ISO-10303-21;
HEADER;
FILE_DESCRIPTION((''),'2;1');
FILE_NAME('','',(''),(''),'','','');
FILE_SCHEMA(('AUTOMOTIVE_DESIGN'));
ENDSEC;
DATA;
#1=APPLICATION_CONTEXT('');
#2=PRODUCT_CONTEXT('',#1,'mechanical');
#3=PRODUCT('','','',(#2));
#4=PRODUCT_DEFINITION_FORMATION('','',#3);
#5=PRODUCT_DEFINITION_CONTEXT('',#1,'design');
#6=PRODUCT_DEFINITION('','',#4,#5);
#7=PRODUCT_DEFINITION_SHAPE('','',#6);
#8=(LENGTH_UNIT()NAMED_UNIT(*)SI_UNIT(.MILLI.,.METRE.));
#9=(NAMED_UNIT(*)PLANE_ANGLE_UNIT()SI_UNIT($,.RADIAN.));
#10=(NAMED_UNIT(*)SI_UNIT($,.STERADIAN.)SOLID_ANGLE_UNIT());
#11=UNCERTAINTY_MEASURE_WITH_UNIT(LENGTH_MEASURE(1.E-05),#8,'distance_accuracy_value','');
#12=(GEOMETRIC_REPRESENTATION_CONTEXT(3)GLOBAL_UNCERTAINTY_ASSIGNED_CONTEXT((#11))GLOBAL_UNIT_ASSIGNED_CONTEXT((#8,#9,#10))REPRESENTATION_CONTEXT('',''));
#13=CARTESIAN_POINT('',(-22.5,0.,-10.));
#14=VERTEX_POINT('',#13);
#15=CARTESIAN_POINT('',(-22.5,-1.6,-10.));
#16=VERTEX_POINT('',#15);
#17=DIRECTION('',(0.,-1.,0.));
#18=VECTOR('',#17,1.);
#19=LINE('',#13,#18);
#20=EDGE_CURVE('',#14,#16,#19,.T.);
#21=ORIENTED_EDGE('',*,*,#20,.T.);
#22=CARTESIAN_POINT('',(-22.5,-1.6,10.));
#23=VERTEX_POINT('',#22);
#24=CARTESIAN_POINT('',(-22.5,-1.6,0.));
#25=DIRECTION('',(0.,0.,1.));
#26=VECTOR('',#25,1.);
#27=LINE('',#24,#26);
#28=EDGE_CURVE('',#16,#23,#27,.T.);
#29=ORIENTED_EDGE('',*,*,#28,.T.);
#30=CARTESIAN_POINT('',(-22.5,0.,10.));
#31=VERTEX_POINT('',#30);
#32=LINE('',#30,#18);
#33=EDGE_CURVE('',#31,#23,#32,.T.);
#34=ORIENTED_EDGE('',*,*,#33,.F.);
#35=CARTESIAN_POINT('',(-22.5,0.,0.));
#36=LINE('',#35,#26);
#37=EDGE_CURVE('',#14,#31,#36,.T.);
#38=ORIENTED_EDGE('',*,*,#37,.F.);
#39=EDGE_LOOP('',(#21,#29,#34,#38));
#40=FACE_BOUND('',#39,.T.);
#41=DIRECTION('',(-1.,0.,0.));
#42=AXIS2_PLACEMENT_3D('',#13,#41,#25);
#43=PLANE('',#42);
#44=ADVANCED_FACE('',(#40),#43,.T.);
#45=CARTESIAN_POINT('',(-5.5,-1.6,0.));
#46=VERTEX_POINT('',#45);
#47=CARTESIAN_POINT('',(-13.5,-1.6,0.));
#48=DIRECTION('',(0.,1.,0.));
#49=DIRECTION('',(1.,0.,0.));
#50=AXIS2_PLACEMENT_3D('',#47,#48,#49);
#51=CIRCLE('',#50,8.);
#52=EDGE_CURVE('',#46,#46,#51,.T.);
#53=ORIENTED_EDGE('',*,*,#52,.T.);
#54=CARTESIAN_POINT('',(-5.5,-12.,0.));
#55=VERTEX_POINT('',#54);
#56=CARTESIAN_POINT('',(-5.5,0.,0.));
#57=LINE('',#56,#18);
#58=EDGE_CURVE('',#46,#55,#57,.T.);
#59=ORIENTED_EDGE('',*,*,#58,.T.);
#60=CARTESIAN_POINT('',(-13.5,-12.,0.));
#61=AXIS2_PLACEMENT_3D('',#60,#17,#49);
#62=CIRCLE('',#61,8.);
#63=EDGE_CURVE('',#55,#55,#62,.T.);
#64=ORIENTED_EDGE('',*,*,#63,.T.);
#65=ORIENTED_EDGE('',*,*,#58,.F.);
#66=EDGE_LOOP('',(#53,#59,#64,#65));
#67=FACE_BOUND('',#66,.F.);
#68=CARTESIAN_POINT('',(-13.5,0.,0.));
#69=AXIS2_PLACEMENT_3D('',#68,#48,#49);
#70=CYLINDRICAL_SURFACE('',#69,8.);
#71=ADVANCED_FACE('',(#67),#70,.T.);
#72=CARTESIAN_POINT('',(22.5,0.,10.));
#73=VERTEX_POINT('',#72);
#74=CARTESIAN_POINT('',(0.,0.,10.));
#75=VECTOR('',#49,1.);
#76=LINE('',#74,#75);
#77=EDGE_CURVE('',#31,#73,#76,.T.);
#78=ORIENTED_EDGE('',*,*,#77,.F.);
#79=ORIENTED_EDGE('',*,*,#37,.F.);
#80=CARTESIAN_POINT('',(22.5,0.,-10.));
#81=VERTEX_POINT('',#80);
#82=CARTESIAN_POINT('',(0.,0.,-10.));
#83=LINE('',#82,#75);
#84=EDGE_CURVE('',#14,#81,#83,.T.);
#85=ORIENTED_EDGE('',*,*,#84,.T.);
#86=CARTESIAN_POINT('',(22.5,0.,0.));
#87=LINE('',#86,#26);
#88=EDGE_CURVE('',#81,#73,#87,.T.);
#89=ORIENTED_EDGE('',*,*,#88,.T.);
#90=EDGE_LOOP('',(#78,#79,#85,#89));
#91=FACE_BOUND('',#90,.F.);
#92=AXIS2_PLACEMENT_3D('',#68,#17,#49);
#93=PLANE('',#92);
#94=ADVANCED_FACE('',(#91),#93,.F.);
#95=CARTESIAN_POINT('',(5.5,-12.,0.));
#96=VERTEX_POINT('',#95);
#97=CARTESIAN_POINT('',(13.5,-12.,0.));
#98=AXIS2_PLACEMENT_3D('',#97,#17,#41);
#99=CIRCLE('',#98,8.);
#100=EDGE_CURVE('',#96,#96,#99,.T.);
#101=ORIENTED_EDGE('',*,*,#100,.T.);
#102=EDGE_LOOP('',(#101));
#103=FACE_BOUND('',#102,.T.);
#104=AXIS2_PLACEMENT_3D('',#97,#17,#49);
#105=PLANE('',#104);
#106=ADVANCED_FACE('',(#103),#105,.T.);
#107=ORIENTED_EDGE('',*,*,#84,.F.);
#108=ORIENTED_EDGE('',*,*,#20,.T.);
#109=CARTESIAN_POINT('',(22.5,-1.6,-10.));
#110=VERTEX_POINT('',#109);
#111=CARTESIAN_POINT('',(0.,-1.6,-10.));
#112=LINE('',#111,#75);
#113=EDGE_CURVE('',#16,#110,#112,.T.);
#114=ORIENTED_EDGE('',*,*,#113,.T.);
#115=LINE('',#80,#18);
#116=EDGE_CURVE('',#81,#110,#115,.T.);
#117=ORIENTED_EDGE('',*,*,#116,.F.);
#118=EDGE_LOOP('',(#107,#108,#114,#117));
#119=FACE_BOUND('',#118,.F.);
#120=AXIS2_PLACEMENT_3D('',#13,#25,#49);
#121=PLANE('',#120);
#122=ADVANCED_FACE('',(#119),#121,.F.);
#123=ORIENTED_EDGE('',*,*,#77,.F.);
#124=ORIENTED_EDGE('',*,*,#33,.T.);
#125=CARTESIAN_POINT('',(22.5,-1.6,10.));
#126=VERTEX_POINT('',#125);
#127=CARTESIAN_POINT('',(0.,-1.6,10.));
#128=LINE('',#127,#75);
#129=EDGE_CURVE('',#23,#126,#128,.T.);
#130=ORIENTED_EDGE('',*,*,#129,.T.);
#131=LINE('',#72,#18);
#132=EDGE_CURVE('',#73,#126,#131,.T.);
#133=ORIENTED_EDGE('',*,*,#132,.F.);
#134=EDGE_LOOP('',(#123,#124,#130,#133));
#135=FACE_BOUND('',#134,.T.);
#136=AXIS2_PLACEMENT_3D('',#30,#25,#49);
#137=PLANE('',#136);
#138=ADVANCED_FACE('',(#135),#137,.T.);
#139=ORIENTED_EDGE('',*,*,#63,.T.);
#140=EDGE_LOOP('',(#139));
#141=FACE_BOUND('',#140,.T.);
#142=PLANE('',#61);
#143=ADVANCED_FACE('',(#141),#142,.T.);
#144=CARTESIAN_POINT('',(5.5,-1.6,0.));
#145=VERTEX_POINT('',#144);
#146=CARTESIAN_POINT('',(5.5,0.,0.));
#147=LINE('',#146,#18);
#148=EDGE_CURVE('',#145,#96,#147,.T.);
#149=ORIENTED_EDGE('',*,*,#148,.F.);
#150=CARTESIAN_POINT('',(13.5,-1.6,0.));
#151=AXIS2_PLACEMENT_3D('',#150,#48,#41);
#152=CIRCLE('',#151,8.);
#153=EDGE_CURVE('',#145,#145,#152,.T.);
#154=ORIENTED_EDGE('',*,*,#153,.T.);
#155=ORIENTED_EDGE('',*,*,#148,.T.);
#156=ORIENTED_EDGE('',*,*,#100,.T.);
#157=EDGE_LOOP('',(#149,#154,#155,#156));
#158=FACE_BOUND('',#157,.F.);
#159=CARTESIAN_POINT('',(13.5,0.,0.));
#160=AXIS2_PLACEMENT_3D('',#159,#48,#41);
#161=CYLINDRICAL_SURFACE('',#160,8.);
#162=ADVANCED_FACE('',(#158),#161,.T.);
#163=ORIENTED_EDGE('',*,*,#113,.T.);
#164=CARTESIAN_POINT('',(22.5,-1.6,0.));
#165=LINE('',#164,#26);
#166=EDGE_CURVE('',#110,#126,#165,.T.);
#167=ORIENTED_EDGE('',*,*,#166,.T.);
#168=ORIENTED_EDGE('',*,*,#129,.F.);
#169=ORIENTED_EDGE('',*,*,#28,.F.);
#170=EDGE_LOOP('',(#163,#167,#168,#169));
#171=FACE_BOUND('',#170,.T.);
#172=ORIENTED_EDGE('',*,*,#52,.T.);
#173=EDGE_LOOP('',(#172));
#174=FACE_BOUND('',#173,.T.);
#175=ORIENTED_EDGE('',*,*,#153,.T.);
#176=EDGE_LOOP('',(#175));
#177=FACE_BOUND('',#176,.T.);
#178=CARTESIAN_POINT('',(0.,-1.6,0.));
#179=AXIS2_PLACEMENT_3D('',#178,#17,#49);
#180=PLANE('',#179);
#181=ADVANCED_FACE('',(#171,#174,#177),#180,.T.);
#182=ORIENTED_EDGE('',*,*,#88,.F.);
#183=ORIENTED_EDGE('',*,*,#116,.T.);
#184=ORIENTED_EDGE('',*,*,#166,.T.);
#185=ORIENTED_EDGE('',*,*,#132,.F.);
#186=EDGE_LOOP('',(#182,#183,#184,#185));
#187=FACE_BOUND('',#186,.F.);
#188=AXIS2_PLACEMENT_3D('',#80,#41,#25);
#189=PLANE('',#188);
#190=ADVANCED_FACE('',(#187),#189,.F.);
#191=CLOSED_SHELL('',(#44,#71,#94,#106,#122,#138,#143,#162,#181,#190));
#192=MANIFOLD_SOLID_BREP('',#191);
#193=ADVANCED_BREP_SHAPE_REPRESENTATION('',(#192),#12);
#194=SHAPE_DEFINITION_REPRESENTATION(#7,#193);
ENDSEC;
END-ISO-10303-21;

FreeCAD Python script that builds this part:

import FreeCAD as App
import Part
import Sketcher
from FreeCAD import Vector


def add_polygon(sketch, points):
    """Adds a closed chain of lines whose ends are joined by coincident constraints."""
    first, n = sketch.GeometryCount, len(points)
    for a, b in zip(points, points[1:] + points[:1]):
        sketch.addGeometry(Part.LineSegment(App.Vector(*a, 0), App.Vector(*b, 0)), False)
    for i in range(n):
        sketch.addConstraint(Sketcher.Constraint("Coincident", first + i, 2, first + (i + 1) % n, 1))

doc = App.newDocument("Part")
body = doc.addObject("PartDesign::Body", "Body")

# Sketch on XZ plane
sketch1 = body.newObject("Sketcher::SketchObject", "Sketch")
sketch1.AttachmentSupport = (doc.getObject("XZ_Plane"), [""])
sketch1.MapMode = "FlatFace"
add_polygon(sketch1, [(-22, 10), (-22, -10), (22, -10), (22, 10)])  # lines 0-3
sketch1.addConstraint(Sketcher.Constraint("Vertical", 0))
sketch1.addConstraint(Sketcher.Constraint("Horizontal", 1))
sketch1.addConstraint(Sketcher.Constraint("Vertical", 2))
sketch1.addConstraint(Sketcher.Constraint("Horizontal", 3))
sketch1.addConstraint(Sketcher.Constraint("Symmetric", 0, 2, 2, 2, -1, 1))
sketch1.addConstraint(Sketcher.Constraint("DistanceX", 1, 1, 1, 2, 45.0))
sketch1.addConstraint(Sketcher.Constraint("DistanceY", 0, 2, 0, 1, 20.0))
pad1 = body.newObject("PartDesign::Pad", "Pad")
pad1.Profile = sketch1
pad1.Length = 1.6

# Sketch on XZ plane
sketch2 = body.newObject("Sketcher::SketchObject", "Sketch001")
sketch2.AttachmentSupport = (doc.getObject("XZ_Plane"), [""])
sketch2.MapMode = "FlatFace"
sketch2.addGeometry(Part.Circle(Vector(-14, 0, 0), Vector(0, 0, 1), 8), False)
sketch2.addGeometry(Part.Circle(Vector(14, 0, 0), Vector(0, 0, 1), 8), False)
sketch2.addConstraint(Sketcher.Constraint("Equal", 0, 1))
sketch2.addConstraint(Sketcher.Constraint("Symmetric", 0, 3, 1, 3, -1, 1))
sketch2.addConstraint(Sketcher.Constraint("PointOnObject", 0, 3, -1))
sketch2.addConstraint(Sketcher.Constraint("Diameter", 0, 16.0))
sketch2.addConstraint(Sketcher.Constraint("DistanceX", 0, 3, 1, 3, 27.0))
pad2 = body.newObject("PartDesign::Pad", "Pad001")
pad2.Profile = sketch2
pad2.Length = 12

doc.recompute()
